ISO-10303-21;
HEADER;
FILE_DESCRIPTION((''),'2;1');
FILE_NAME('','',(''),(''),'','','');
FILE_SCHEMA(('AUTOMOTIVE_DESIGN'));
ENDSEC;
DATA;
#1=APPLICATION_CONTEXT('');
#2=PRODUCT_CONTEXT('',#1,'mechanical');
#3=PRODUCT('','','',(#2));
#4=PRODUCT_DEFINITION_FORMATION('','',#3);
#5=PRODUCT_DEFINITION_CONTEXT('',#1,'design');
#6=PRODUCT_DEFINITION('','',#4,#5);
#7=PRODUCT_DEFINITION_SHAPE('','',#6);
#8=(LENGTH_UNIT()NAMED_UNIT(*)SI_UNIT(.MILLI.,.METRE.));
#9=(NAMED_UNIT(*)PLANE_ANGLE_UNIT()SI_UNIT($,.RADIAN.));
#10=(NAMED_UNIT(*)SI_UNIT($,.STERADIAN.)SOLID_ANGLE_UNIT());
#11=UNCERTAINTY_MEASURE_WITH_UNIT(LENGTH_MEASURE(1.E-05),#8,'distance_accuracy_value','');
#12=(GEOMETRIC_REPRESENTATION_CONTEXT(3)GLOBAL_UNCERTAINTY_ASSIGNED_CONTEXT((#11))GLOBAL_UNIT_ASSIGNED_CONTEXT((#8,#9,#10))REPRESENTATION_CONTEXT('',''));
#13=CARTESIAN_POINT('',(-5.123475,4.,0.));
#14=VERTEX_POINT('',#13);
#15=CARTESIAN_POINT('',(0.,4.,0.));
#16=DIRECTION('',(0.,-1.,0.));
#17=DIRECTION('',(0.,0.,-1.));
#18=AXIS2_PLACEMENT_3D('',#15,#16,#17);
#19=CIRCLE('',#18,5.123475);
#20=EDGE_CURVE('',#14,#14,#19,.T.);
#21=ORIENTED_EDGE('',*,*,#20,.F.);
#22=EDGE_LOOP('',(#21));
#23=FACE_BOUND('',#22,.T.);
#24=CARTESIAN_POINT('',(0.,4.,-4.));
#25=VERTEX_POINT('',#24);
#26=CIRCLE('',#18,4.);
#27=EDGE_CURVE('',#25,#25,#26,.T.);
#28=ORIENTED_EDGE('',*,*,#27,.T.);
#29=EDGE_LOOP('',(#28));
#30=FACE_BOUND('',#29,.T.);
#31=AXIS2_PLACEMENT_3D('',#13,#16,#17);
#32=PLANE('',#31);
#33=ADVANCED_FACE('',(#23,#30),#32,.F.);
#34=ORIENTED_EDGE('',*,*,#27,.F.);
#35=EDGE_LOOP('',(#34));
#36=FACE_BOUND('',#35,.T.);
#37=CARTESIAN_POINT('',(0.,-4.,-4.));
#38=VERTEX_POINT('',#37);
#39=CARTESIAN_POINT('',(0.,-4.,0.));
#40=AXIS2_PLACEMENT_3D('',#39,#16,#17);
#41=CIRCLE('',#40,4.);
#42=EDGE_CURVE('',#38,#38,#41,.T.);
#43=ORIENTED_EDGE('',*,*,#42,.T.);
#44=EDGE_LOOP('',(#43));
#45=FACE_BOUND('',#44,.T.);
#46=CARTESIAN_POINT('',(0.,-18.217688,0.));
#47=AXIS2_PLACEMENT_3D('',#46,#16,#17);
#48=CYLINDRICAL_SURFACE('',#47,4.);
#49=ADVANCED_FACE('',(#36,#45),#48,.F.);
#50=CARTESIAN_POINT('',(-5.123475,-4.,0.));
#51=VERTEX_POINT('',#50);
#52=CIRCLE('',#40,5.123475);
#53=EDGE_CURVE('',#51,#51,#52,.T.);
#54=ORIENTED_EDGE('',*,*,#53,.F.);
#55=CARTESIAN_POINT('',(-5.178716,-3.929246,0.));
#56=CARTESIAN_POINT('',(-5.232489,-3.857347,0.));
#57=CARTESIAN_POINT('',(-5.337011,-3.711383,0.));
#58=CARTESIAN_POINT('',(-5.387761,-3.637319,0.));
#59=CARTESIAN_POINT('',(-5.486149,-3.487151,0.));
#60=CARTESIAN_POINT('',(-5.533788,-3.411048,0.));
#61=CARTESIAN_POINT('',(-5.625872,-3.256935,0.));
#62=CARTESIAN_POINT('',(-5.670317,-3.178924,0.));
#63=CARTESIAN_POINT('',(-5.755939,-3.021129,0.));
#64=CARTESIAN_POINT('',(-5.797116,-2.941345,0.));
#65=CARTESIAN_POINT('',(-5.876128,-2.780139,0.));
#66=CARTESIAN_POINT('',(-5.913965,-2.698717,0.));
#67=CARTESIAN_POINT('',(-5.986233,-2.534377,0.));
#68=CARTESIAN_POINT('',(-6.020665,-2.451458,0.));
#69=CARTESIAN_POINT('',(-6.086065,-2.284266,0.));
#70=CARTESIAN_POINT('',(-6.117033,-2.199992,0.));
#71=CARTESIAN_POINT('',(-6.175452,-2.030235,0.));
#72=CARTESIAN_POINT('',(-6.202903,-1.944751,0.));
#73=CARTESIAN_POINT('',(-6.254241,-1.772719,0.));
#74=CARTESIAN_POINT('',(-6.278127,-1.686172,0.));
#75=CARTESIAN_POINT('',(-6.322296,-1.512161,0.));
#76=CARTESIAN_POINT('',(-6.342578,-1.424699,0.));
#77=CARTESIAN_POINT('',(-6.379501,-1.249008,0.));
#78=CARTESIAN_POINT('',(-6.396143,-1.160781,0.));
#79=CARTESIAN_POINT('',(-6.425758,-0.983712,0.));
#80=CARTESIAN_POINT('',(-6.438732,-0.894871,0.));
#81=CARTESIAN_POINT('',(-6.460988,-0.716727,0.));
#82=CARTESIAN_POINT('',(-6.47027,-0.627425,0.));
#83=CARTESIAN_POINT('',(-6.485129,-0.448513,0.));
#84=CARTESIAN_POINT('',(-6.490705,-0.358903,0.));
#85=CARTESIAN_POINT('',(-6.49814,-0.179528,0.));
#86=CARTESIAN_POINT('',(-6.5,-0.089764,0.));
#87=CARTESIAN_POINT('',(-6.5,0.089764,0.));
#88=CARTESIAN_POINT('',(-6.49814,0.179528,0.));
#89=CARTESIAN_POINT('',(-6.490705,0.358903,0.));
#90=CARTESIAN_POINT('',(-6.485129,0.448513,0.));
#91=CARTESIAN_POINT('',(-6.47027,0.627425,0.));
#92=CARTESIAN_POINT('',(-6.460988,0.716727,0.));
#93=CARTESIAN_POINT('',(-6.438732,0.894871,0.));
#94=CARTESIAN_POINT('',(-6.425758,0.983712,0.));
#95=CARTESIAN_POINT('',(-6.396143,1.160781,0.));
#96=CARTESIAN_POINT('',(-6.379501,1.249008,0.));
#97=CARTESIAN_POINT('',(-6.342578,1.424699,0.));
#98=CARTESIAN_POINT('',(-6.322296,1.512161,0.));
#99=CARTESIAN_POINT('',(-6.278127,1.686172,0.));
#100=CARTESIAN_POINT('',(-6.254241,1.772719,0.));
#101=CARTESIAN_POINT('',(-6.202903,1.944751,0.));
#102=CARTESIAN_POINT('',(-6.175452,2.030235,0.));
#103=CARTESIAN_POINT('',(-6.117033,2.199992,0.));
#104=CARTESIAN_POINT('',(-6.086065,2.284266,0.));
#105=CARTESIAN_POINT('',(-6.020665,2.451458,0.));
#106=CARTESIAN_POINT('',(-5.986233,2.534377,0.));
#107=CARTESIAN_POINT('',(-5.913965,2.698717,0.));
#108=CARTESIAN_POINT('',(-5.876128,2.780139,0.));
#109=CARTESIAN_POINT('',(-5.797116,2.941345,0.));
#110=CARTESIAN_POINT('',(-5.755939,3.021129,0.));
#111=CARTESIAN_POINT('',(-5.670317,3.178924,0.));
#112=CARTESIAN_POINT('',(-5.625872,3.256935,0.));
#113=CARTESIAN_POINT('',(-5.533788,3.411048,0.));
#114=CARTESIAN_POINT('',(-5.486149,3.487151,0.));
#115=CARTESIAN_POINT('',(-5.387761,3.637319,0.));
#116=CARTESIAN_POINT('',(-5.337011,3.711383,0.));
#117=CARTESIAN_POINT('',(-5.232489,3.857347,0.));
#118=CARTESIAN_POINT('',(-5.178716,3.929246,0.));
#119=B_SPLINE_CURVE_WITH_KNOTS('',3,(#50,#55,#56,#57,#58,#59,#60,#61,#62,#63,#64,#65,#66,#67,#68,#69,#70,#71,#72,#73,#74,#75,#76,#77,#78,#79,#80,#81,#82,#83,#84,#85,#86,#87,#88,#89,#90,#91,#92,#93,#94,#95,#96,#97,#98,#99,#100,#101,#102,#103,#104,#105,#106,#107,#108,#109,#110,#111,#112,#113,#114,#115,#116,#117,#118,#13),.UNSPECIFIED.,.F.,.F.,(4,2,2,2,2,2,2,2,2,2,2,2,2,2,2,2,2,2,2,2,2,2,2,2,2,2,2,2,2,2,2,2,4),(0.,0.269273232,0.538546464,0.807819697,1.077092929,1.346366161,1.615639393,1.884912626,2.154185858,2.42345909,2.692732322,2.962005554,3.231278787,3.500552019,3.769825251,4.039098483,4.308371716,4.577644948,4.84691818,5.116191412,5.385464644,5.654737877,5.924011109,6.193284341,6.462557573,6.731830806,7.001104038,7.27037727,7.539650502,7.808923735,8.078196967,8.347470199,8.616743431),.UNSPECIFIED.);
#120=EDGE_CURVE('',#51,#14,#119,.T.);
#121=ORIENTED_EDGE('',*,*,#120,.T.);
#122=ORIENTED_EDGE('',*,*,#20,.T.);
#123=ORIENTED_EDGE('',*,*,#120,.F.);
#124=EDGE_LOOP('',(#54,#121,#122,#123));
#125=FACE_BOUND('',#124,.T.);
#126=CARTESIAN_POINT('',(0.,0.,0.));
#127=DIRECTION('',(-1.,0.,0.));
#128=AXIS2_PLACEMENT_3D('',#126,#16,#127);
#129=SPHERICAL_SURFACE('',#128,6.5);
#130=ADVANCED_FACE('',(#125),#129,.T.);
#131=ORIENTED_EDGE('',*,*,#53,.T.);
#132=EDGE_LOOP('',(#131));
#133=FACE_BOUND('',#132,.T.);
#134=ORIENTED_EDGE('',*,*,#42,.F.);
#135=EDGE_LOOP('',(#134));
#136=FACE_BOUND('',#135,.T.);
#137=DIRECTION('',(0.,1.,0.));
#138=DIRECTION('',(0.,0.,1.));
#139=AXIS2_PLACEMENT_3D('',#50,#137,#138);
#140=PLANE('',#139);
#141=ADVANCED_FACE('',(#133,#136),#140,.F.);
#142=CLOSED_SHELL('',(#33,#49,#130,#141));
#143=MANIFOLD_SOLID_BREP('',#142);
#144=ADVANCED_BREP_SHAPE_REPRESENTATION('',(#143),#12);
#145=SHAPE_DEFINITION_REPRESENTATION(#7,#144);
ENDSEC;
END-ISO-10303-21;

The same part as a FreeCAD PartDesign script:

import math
import FreeCAD as App
import Part
import Sketcher
Q = App.Units.Quantity

doc = App.newDocument("Part")
body = doc.addObject("PartDesign::Body", "Body")

# Sketch on XY plane
sketch1 = body.newObject("Sketcher::SketchObject", "Sketch")
sketch1.AttachmentSupport = (doc.getObject("XY_Plane"), [""])
sketch1.MapMode = "FlatFace"
sketch1.addGeometry(Part.LineSegment(App.Vector(-4, -4, 0), App.Vector(-4, 4, 0)), False)
sketch1.addGeometry(Part.LineSegment(App.Vector(-4, 4, 0), App.Vector(-5.1, 4, 0)), False)
sketch1.addGeometry(Part.ArcOfCircle(Part.Circle(App.Vector(0, 0, 0), App.Vector(0, 0, 1), 6.5), math.radians(142), math.radians(218)), False)
sketch1.addGeometry(Part.LineSegment(App.Vector(-5.1, -4, 0), App.Vector(-4, -4, 0)), False)
sketch1.addConstraint(Sketcher.Constraint("Coincident", 0, 2, 1, 1))
sketch1.addConstraint(Sketcher.Constraint("Coincident", 1, 2, 2, 1))
sketch1.addConstraint(Sketcher.Constraint("Coincident", 2, 2, 3, 1))
sketch1.addConstraint(Sketcher.Constraint("Coincident", 3, 2, 0, 1))
sketch1.addConstraint(Sketcher.Constraint("Vertical", 0))
sketch1.addConstraint(Sketcher.Constraint("Horizontal", 1))
sketch1.addConstraint(Sketcher.Constraint("Horizontal", 3))
sketch1.addConstraint(Sketcher.Constraint("Coincident", 2, 3, -1, 1))
sketch1.addConstraint(Sketcher.Constraint("Vertical", 1, 2, 2, 2))
sketch1.addConstraint(Sketcher.Constraint("Radius", 2, Q("6.5 mm")))
sketch1.addConstraint(Sketcher.Constraint("DistanceY", 0, 1, 0, 2, Q("8 mm")))
sketch1.addConstraint(Sketcher.Constraint("DistanceX", 0, 2, -1, 1, Q("4 mm")))
revolution = body.newObject("PartDesign::Revolution", "Revolution")
revolution.Profile = sketch1
revolution.ReferenceAxis = (sketch1, ["V_Axis"])
revolution.Angle = 360

doc.recompute()
